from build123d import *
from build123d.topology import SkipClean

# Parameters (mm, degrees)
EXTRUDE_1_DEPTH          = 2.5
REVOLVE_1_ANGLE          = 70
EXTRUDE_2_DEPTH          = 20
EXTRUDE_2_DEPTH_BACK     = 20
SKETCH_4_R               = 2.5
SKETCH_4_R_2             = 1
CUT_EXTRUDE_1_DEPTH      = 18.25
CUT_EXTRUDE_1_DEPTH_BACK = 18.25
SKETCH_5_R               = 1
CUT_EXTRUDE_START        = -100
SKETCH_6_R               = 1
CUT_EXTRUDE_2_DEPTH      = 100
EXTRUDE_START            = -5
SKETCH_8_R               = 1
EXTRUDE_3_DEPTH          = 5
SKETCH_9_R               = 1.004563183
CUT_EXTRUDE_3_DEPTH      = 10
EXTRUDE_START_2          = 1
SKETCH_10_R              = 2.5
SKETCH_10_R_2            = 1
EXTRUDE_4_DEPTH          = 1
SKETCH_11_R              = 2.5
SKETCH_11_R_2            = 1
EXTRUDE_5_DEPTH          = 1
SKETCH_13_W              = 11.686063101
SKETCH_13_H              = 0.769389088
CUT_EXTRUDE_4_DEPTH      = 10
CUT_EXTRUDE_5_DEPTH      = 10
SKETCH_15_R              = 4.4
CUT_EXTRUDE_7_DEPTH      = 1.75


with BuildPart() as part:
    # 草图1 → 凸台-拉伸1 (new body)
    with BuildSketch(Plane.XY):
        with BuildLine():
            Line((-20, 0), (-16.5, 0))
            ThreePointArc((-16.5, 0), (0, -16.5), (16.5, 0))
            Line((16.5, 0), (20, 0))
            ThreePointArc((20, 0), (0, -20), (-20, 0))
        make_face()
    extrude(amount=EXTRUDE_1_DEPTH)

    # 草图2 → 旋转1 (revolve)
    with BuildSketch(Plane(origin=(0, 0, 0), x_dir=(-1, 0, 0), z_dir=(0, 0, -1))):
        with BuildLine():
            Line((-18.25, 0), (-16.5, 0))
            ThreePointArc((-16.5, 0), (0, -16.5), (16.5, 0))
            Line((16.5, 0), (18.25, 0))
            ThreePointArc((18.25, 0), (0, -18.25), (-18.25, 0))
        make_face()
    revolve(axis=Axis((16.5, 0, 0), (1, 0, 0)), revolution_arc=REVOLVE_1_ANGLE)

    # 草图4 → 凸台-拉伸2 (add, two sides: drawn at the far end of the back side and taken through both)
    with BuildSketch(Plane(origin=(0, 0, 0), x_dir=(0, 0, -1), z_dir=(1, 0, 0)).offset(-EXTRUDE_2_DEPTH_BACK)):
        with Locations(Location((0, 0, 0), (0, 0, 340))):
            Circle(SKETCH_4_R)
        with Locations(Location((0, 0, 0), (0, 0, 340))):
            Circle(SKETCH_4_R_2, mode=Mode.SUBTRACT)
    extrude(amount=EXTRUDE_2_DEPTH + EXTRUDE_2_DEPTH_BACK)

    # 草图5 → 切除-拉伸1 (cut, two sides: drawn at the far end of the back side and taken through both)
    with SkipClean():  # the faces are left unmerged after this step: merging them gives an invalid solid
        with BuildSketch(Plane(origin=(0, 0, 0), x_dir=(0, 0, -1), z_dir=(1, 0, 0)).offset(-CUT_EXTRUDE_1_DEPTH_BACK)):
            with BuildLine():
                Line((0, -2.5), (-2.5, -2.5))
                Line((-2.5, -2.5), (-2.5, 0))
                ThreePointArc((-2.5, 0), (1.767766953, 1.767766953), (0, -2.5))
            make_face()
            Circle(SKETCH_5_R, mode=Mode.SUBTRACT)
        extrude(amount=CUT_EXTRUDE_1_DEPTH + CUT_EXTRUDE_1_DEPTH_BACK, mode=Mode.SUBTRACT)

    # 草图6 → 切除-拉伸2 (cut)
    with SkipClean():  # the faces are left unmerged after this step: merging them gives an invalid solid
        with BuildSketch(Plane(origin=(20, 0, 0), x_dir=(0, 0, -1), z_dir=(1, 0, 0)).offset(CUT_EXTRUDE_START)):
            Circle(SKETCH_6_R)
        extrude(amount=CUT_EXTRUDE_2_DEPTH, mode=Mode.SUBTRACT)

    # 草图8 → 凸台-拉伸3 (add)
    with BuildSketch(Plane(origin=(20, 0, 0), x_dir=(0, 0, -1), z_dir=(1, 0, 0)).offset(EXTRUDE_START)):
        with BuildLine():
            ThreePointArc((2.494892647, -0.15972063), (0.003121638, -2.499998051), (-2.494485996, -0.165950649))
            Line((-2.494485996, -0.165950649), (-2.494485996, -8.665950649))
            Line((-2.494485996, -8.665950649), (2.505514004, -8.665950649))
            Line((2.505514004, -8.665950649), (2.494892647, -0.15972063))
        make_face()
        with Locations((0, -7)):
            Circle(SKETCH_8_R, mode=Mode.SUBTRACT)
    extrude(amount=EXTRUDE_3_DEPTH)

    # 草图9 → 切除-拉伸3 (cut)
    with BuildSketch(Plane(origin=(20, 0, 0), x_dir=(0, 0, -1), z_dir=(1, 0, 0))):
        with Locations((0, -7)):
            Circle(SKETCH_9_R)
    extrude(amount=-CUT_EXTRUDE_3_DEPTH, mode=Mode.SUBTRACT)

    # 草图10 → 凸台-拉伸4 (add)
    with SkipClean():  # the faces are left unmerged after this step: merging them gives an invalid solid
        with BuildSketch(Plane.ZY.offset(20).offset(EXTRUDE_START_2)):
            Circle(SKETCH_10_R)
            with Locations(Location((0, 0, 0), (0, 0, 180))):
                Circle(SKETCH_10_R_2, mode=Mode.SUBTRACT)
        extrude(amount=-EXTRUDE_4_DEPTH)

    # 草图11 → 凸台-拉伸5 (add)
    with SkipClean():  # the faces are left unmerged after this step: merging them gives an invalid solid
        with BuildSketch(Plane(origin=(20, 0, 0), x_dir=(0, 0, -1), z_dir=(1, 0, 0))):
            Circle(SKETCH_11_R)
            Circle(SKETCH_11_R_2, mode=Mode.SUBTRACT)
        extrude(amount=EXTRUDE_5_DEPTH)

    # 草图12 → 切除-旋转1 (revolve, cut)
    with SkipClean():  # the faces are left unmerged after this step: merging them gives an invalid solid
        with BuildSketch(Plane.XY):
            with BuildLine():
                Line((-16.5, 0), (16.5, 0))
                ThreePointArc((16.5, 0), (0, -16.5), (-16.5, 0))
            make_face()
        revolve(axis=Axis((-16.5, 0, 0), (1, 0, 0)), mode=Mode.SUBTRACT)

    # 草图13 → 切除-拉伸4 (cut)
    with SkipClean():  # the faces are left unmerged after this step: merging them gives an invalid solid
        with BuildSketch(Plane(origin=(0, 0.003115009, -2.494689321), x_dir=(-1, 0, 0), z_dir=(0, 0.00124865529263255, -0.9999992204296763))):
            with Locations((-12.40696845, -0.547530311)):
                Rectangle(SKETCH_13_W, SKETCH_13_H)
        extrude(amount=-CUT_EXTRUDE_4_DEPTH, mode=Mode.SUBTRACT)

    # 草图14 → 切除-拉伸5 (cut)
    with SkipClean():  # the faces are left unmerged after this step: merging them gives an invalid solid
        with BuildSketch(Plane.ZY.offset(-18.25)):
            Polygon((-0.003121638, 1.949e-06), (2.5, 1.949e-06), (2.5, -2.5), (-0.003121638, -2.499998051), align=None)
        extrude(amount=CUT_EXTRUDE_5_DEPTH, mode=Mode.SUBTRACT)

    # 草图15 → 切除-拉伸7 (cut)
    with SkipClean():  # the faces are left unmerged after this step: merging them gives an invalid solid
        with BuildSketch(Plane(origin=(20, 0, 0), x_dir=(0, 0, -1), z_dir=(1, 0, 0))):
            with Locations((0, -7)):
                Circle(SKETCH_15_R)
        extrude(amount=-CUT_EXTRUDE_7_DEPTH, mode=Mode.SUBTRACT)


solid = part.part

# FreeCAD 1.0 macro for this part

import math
import FreeCAD as App
import Part
import Sketcher
from FreeCAD import Vector
Q = App.Units.Quantity


def add_polygon(sketch, points):
    """Adds a closed chain of lines whose ends are joined by coincident constraints."""
    first, n = sketch.GeometryCount, len(points)
    for a, b in zip(points, points[1:] + points[:1]):
        sketch.addGeometry(Part.LineSegment(App.Vector(*a, 0), App.Vector(*b, 0)), False)
    for i in range(n):
        sketch.addConstraint(Sketcher.Constraint("Coincident", first + i, 2, first + (i + 1) % n, 1))

doc = App.newDocument("Part")
body = doc.addObject("PartDesign::Body", "Body")

sketch1 = body.newObject("Sketcher::SketchObject", "Sketch")
sketch1.AttachmentSupport = (doc.getObject("XY_Plane"), [""])
sketch1.MapMode = "FlatFace"
sketch1.addGeometry([
    Part.LineSegment(Vector(-16.5, 0, 0), Vector(-20, 0, 0)),
    Part.ArcOfCircle(Part.Circle(Vector(0, 0, 0), Vector(0, 0, 1), 20), math.radians(180), math.radians(360)),
    Part.LineSegment(Vector(20, 0, 0), Vector(16.5, 0, 0)),
    Part.ArcOfCircle(Part.Circle(Vector(0, 0, 0), Vector(0, 0, 1), 16.5), math.radians(180), math.radians(360)),
], False)
sketch1.addConstraint([
    Sketcher.Constraint("Coincident", 0, 2, 1, 1),
    Sketcher.Constraint("Coincident", 1, 2, 2, 1),
    Sketcher.Constraint("Coincident", 2, 2, 3, 2),
    Sketcher.Constraint("Coincident", 3, 1, 0, 1),
    Sketcher.Constraint("Horizontal", 0),
    Sketcher.Constraint("Horizontal", 2),
    Sketcher.Constraint("Coincident", 1, 3, -1, 1),
    Sketcher.Constraint("Coincident", 3, 3, -1, 1),
    Sketcher.Constraint("PointOnObject", 0, 2, -1),
    Sketcher.Constraint("PointOnObject", 1, 2, -1),
    Sketcher.Constraint("Radius", 1, Q("20 mm")),
    Sketcher.Constraint("Radius", 3, Q("16.5 mm")),
])
pad1 = body.newObject("PartDesign::Pad", "Pad")
pad1.Profile = sketch1
pad1.Length = 2.5

sketch2 = body.newObject("Sketcher::SketchObject", "Sketch001")
sketch2.AttachmentSupport = (doc.getObject("XY_Plane"), [""])
sketch2.MapMode = "FlatFace"
sketch2.addGeometry([
    Part.LineSegment(Vector(16.5, 0, 0), Vector(18.25, 0, 0)),
    Part.ArcOfCircle(Part.Circle(Vector(0, 0, 0), Vector(0, 0, 1), 18.25), math.radians(180), math.radians(360)),
    Part.LineSegment(Vector(-18.25, 0, 0), Vector(-16.5, 0, 0)),
    Part.ArcOfCircle(Part.Circle(Vector(0, 0, 0), Vector(0, 0, 1), 16.5), math.radians(180), math.radians(360)),
], False)
sketch2.addConstraint([
    Sketcher.Constraint("Coincident", 0, 2, 1, 2),
    Sketcher.Constraint("Coincident", 1, 1, 2, 1),
    Sketcher.Constraint("Coincident", 2, 2, 3, 1),
    Sketcher.Constraint("Coincident", 3, 2, 0, 1),
    Sketcher.Constraint("Horizontal", 0),
    Sketcher.Constraint("Horizontal", 2),
    Sketcher.Constraint("Coincident", 1, 3, -1, 1),
    Sketcher.Constraint("Coincident", 3, 3, -1, 1),
    Sketcher.Constraint("PointOnObject", 0, 2, -1),
    Sketcher.Constraint("PointOnObject", 1, 1, -1),
    Sketcher.Constraint("Radius", 3, Q("16.5 mm")),
    Sketcher.Constraint("Radius", 1, Q("18.25 mm")),
])
revolution = body.newObject("PartDesign::Revolution", "Revolution")
revolution.Profile = sketch2
revolution.ReferenceAxis = (sketch2, ["H_Axis"])
revolution.Angle = 70

sketch3 = body.newObject("Sketcher::SketchObject", "Sketch002")
sketch3.AttachmentSupport = (doc.getObject("YZ_Plane"), [""])
sketch3.MapMode = "FlatFace"
sketch3.addGeometry([
    Part.Circle(Vector(0, 0, 0), Vector(0, 0, 1), 2.5),
    Part.Circle(Vector(0, 0, 0), Vector(0, 0, 1), 1),
], False)
sketch3.addConstraint([
    Sketcher.Constraint("Coincident", 0, 3, -1, 1),
    Sketcher.Constraint("Coincident", 1, 3, -1, 1),
    Sketcher.Constraint("Diameter", 0, Q("5 mm")),
    Sketcher.Constraint("Diameter", 1, Q("2 mm")),
])
pad2 = body.newObject("PartDesign::Pad", "Pad001")
pad2.Profile = sketch3
pad2.Type = "TwoLengths"
pad2.Length = 20
pad2.Length2 = 20

sketch4 = body.newObject("Sketcher::SketchObject", "Sketch003")
sketch4.AttachmentSupport = (doc.getObject("YZ_Plane"), [""])
sketch4.MapMode = "FlatFace"
sketch4.addGeometry([
    Part.LineSegment(Vector(-2.5, 2.5, 0), Vector(-2.5, 0, 0)),
    Part.ArcOfCircle(Part.Circle(Vector(0, 0, 0), Vector(0, 0, 1), 2.5), math.radians(180), math.radians(450)),
    Part.LineSegment(Vector(0, 2.5, 0), Vector(-2.5, 2.5, 0)),
    Part.Circle(Vector(0, 0, 0), Vector(0, 0, 1), 1),
], False)
sketch4.addConstraint([
    Sketcher.Constraint("Tangent", 0, 2, 1, 1),
    Sketcher.Constraint("Tangent", 1, 2, 2, 1),
    Sketcher.Constraint("Coincident", 2, 2, 0, 1),
    Sketcher.Constraint("Vertical", 0),
    Sketcher.Constraint("Horizontal", 2),
    Sketcher.Constraint("Coincident", 1, 3, -1, 1),
    Sketcher.Constraint("Coincident", 3, 3, -1, 1),
    Sketcher.Constraint("Diameter", 3, Q("2 mm")),
    Sketcher.Constraint("Radius", 1, Q("2.5 mm")),
])
pocket1 = body.newObject("PartDesign::Pocket", "Pocket")
pocket1.Profile = sketch4
pocket1.Type = "TwoLengths"
pocket1.Length = 18.25
pocket1.Length2 = 18.25
pocket1.Reversed = True

sketch5 = body.newObject("Sketcher::SketchObject", "Sketch004")
sketch5.AttachmentSupport = (doc.getObject("YZ_Plane"), [""])
sketch5.MapMode = "FlatFace"
sketch5.AttachmentOffset = App.Placement(Vector(0, 0, -80), App.Rotation())
sketch5.addGeometry(Part.Circle(Vector(0, 0, 0), Vector(0, 0, 1), 1), False)
sketch5.addConstraint([
    Sketcher.Constraint("Coincident", 0, 3, -1, 1),
    Sketcher.Constraint("Diameter", 0, Q("2 mm")),
])
pocket2 = body.newObject("PartDesign::Pocket", "Pocket001")
pocket2.Profile = sketch5
pocket2.Length = 100
pocket2.Reversed = True

sketch6 = body.newObject("Sketcher::SketchObject", "Sketch005")
sketch6.AttachmentSupport = (doc.getObject("YZ_Plane"), [""])
sketch6.MapMode = "FlatFace"
sketch6.AttachmentOffset = App.Placement(Vector(0, 0, 15), App.Rotation())
sketch6.addGeometry([
    Part.ArcOfCircle(Part.Circle(Vector(0, 0, 0), Vector(0, 0, 1), 2.5), math.radians(93.806107), math.radians(266.336978)),
    Part.LineSegment(Vector(-0.165951, 2.494486, 0), Vector(-8.665951, 2.494486, 0)),
    Part.LineSegment(Vector(-8.665951, 2.494486, 0), Vector(-8.665951, -2.505514, 0)),
    Part.LineSegment(Vector(-8.665951, -2.505514, 0), Vector(-0.159721, -2.494893, 0)),
    Part.Circle(Vector(-7, 0, 0), Vector(0, 0, 1), 1),
], False)
sketch6.addConstraint([
    Sketcher.Constraint("Coincident", 0, 1, 1, 1),
    Sketcher.Constraint("Coincident", 1, 2, 2, 1),
    Sketcher.Constraint("Coincident", 2, 2, 3, 1),
    Sketcher.Constraint("Coincident", 3, 2, 0, 2),
    Sketcher.Constraint("Horizontal", 1),
    Sketcher.Constraint("Vertical", 2),
    Sketcher.Constraint("Coincident", 0, 3, -1, 1),
    Sketcher.Constraint("PointOnObject", 4, 3, -1),
    Sketcher.Constraint("Diameter", 4, Q("2 mm")),
    Sketcher.Constraint("Radius", 0, Q("2.5 mm")),
    Sketcher.Constraint("DistanceY", 2, 2, 2, 1, Q("5 mm")),
    Sketcher.Constraint("DistanceX", 1, 2, 1, 1, Q("8.5 mm")),
    Sketcher.Constraint("DistanceX", 4, 3, -1, 1, Q("7 mm")),
    Sketcher.Constraint("DistanceX", 0, 1, -1, 1, Q("0.165951 mm")),
    Sketcher.Constraint("DistanceX", 3, 2, -1, 1, Q("0.159721 mm")),
])
pad3 = body.newObject("PartDesign::Pad", "Pad002")
pad3.Profile = sketch6
pad3.Length = 5

sketch7 = body.newObject("Sketcher::SketchObject", "Sketch006")
sketch7.AttachmentSupport = (doc.getObject("YZ_Plane"), [""])
sketch7.MapMode = "FlatFace"
sketch7.AttachmentOffset = App.Placement(Vector(0, 0, 20), App.Rotation())
sketch7.addGeometry(Part.Circle(Vector(-7, 0, 0), Vector(0, 0, 1), 1.004563), False)
sketch7.addConstraint([
    Sketcher.Constraint("PointOnObject", 0, 3, -1),
    Sketcher.Constraint("DistanceX", 0, 3, -1, 1, Q("7 mm")),
    Sketcher.Constraint("Diameter", 0, Q("2.009126 mm")),
])
pocket3 = body.newObject("PartDesign::Pocket", "Pocket002")
pocket3.Profile = sketch7
pocket3.Length = 10

sketch8 = body.newObject("Sketcher::SketchObject", "Sketch007")
sketch8.AttachmentSupport = (doc.getObject("YZ_Plane"), [""])
sketch8.MapMode = "FlatFace"
sketch8.AttachmentOffset = App.Placement(Vector(0, 0, -21), App.Rotation())
sketch8.addGeometry([
    Part.Circle(Vector(0, 0, 0), Vector(0, 0, 1), 2.5),
    Part.Circle(Vector(0, 0, 0), Vector(0, 0, 1), 1),
], False)
sketch8.addConstraint([
    Sketcher.Constraint("Coincident", 0, 3, -1, 1),
    Sketcher.Constraint("Coincident", 1, 3, -1, 1),
    Sketcher.Constraint("Diameter", 0, Q("5 mm")),
    Sketcher.Constraint("Diameter", 1, Q("2 mm")),
])
pad4 = body.newObject("PartDesign::Pad", "Pad003")
pad4.Profile = sketch8
pad4.Length = 1

sketch9 = body.newObject("Sketcher::SketchObject", "Sketch008")
sketch9.AttachmentSupport = (doc.getObject("YZ_Plane"), [""])
sketch9.MapMode = "FlatFace"
sketch9.AttachmentOffset = App.Placement(Vector(0, 0, 20), App.Rotation())
sketch9.addGeometry([
    Part.Circle(Vector(0, 0, 0), Vector(0, 0, 1), 2.5),
    Part.Circle(Vector(0, 0, 0), Vector(0, 0, 1), 1),
], False)
sketch9.addConstraint([
    Sketcher.Constraint("Coincident", 0, 3, -1, 1),
    Sketcher.Constraint("Coincident", 1, 3, -1, 1),
    Sketcher.Constraint("Diameter", 0, Q("5 mm")),
    Sketcher.Constraint("Diameter", 1, Q("2 mm")),
])
pad5 = body.newObject("PartDesign::Pad", "Pad004")
pad5.Profile = sketch9
pad5.Length = 1

sketch10 = body.newObject("Sketcher::SketchObject", "Sketch009")
sketch10.AttachmentSupport = (doc.getObject("XY_Plane"), [""])
sketch10.MapMode = "FlatFace"
sketch10.addGeometry([
    Part.LineSegment(Vector(16.5, 0, 0), Vector(-16.5, 0, 0)),
    Part.ArcOfCircle(Part.Circle(Vector(0, 0, 0), Vector(0, 0, 1), 16.5), math.radians(180), math.radians(360)),
], False)
sketch10.addConstraint([
    Sketcher.Constraint("Coincident", 0, 1, 1, 2),
    Sketcher.Constraint("Coincident", 1, 1, 0, 2),
    Sketcher.Constraint("Horizontal", 0),
    Sketcher.Constraint("Coincident", 1, 3, -1, 1),
    Sketcher.Constraint("PointOnObject", 0, 1, -1),
    Sketcher.Constraint("Radius", 1, Q("16.5 mm")),
])
groove = body.newObject("PartDesign::Groove", "Groove")
groove.Profile = sketch10
groove.ReferenceAxis = (sketch10, ["H_Axis"])
groove.Angle = 360

sketch11 = body.newObject("Sketcher::SketchObject", "Sketch010")
sketch11.Placement = App.Placement(Vector(0, 0.003115, -2.494689), App.Rotation(Vector(-1, 0, 0), Vector(0, 0.99999922, 0.001248655), Vector(0, 0.001248655, -0.99999922), "ZXY"))
add_polygon(sketch11, [(-18.25, -0.162836), (-18.25, -0.932225), (-6.563937, -0.932225), (-6.563937, -0.162836)])
sketch11.addConstraint([
    Sketcher.Constraint("Vertical", 0),
    Sketcher.Constraint("Horizontal", 1),
    Sketcher.Constraint("Vertical", 2),
    Sketcher.Constraint("Horizontal", 3),
    Sketcher.Constraint("DistanceX", 0, 2, -1, 1, Q("18.25 mm")),
    Sketcher.Constraint("DistanceY", 0, 2, 0, 1, Q("0.769389 mm")),
    Sketcher.Constraint("DistanceX", 1, 1, 1, 2, Q("11.686063 mm")),
    Sketcher.Constraint("DistanceY", 0, 2, -1, 1, Q("0.932225 mm")),
])
pocket4 = body.newObject("PartDesign::Pocket", "Pocket003")
pocket4.Profile = sketch11
pocket4.Length = 10

sketch12 = body.newObject("Sketcher::SketchObject", "Sketch011")
sketch12.AttachmentSupport = (doc.getObject("YZ_Plane"), [""])
sketch12.MapMode = "FlatFace"
sketch12.AttachmentOffset = App.Placement(Vector(0, 0, 18.25), App.Rotation())
add_polygon(sketch12, [(0.000002, 2.5), (0.000002, -0.003122), (-2.499998, -0.003122), (-2.5, 2.5)])
sketch12.addConstraint([
    Sketcher.Constraint("Vertical", 0),
    Sketcher.Constraint("Horizontal", 1),
    Sketcher.Constraint("Vertical", 2),
    Sketcher.Constraint("Horizontal", 3),
    Sketcher.Constraint("PointOnObject", 0, 2, -2),
    Sketcher.Constraint("DistanceX", 1, 2, 1, 1, Q("2.5 mm")),
    Sketcher.Constraint("DistanceY", -1, 1, 2, 2, Q("2.5 mm")),
    Sketcher.Constraint("DistanceY", 0, 2, 0, 1, Q("2.503122 mm")),
])
pocket5 = body.newObject("PartDesign::Pocket", "Pocket004")
pocket5.Profile = sketch12
pocket5.Length = 10

sketch13 = body.newObject("Sketcher::SketchObject", "Sketch012")
sketch13.AttachmentSupport = (doc.getObject("YZ_Plane"), [""])
sketch13.MapMode = "FlatFace"
sketch13.AttachmentOffset = App.Placement(Vector(0, 0, 20), App.Rotation())
sketch13.addGeometry(Part.Circle(Vector(-7, 0, 0), Vector(0, 0, 1), 4.4), False)
sketch13.addConstraint([
    Sketcher.Constraint("PointOnObject", 0, 3, -1),
    Sketcher.Constraint("Diameter", 0, Q("8.8 mm")),
    Sketcher.Constraint("DistanceX", 0, 3, -1, 1, Q("7 mm")),
])
pocket6 = body.newObject("PartDesign::Pocket", "Pocket005")
pocket6.Profile = sketch13
pocket6.Length = 1.75

doc.recompute()
